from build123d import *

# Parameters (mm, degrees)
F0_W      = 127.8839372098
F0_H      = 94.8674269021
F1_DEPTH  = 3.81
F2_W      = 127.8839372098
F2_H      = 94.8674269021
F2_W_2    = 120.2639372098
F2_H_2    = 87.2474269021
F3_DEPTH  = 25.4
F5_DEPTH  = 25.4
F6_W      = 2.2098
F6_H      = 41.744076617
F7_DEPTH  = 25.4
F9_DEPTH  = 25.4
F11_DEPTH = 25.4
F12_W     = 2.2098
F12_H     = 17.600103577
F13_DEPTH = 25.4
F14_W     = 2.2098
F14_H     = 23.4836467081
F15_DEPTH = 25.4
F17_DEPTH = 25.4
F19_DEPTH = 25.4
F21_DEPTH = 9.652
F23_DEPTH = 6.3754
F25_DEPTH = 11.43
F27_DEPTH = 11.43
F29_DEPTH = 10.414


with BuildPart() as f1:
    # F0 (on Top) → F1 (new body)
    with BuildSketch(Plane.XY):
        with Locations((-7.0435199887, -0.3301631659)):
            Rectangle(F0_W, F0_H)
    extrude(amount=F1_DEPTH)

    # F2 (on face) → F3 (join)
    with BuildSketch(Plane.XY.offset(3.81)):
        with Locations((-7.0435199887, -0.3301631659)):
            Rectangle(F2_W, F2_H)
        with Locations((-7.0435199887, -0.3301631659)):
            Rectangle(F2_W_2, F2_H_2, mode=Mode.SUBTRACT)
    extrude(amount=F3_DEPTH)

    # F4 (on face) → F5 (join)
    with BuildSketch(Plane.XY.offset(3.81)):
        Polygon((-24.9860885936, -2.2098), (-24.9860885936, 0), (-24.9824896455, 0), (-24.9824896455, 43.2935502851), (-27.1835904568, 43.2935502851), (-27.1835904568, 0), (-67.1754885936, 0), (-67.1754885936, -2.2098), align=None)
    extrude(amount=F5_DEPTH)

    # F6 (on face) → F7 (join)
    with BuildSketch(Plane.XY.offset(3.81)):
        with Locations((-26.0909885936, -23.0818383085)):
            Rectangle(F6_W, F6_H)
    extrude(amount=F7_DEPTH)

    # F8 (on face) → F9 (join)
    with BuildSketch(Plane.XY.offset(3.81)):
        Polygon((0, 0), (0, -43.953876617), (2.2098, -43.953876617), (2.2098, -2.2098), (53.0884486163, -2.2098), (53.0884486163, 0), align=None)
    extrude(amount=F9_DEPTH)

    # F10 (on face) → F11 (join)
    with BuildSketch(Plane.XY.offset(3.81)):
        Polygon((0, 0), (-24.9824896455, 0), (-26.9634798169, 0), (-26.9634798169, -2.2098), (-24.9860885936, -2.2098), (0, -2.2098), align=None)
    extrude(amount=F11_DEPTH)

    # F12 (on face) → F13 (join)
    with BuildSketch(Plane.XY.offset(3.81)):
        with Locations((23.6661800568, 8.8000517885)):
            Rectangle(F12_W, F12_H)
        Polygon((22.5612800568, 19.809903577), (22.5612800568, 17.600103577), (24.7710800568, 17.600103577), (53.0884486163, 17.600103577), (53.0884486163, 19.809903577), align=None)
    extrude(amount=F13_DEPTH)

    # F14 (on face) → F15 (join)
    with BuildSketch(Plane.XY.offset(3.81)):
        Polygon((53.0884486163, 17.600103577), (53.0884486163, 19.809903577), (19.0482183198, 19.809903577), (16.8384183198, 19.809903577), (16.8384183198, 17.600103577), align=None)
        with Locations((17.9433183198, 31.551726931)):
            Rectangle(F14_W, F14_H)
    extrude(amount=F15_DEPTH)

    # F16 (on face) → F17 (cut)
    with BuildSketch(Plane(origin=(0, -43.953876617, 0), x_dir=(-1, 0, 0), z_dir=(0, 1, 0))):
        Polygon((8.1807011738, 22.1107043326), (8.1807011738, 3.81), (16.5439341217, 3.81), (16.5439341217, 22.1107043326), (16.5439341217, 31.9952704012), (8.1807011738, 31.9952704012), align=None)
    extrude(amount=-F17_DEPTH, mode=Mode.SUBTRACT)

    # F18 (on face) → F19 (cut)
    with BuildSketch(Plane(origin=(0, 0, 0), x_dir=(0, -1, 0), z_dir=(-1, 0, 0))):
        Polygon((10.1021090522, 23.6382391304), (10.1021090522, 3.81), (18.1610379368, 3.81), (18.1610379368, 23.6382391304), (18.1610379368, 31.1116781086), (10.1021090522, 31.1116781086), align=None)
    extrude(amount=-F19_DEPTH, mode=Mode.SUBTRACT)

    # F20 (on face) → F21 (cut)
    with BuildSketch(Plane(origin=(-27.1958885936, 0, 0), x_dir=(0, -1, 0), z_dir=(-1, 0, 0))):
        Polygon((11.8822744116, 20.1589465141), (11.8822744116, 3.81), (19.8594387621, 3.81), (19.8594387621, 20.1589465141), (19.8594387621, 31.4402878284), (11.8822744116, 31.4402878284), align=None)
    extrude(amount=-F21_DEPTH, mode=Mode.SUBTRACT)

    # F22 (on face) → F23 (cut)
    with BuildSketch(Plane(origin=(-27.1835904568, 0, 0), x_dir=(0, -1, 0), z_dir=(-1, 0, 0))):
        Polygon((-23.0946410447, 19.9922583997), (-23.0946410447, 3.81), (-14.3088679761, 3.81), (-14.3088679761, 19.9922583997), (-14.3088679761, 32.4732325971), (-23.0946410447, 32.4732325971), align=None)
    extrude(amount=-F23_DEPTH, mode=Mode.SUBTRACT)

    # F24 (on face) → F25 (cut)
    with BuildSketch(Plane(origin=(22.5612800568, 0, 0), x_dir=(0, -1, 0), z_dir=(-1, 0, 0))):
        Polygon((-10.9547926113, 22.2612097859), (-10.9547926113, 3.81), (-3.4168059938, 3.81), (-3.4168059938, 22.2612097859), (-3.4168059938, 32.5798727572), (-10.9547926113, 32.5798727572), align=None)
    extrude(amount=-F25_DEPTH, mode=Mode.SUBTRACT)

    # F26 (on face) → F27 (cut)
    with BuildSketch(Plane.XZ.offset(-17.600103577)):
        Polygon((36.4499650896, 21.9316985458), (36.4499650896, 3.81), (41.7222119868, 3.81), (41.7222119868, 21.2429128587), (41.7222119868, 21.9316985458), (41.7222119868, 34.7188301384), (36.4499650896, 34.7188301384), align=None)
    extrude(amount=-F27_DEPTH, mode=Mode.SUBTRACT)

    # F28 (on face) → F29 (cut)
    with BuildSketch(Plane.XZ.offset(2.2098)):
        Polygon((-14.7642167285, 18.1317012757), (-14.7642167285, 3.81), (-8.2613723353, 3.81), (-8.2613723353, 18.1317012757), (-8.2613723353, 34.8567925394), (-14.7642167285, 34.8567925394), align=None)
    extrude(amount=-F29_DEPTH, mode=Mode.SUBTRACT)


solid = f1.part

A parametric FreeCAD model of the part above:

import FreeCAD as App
import Part
import Sketcher

V = App.Vector
Q = App.Units.Quantity


def add_polygon(sketch, points):
    """Adds a closed chain of lines whose ends are joined by coincident constraints."""
    first, n = sketch.GeometryCount, len(points)
    for a, b in zip(points, points[1:] + points[:1]):
        sketch.addGeometry(Part.LineSegment(App.Vector(*a, 0), App.Vector(*b, 0)), False)
    for i in range(n):
        sketch.addConstraint(Sketcher.Constraint("Coincident", first + i, 2, first + (i + 1) % n, 1))

doc = App.newDocument("Part")
body = doc.addObject("PartDesign::Body", "Body")

# Sketch on XY plane
sketch1 = body.newObject("Sketcher::SketchObject", "Sketch")
sketch1.AttachmentSupport = (doc.getObject("XY_Plane"), [""])
sketch1.MapMode = "FlatFace"
add_polygon(sketch1, [(-71, 47), (-71, -48), (57, -48), (57, 47)])  # lines 0-3
sketch1.addConstraint(Sketcher.Constraint("Vertical", 0))
sketch1.addConstraint(Sketcher.Constraint("Horizontal", 1))
sketch1.addConstraint(Sketcher.Constraint("Vertical", 2))
sketch1.addConstraint(Sketcher.Constraint("Horizontal", 3))
sketch1.addConstraint(Sketcher.Constraint("DistanceX", 1, 1, 1, 2, Q("127.883937 mm")))
sketch1.addConstraint(Sketcher.Constraint("DistanceY", 0, 2, 0, 1, Q("94.867427 mm")))
sketch1.addConstraint(Sketcher.Constraint("DistanceX", 0, 2, -1, 1, Q("70.985489 mm")))
sketch1.addConstraint(Sketcher.Constraint("DistanceY", -1, 1, 2, 2, Q("47.10355 mm")))
pad1 = body.newObject("PartDesign::Pad", "Pad")
pad1.Profile = sketch1
pad1.Length = Q("0.15 in")

# Sketch on XY plane
sketch2 = body.newObject("Sketcher::SketchObject", "Sketch001")
sketch2.AttachmentSupport = (doc.getObject("XY_Plane"), [""])
sketch2.MapMode = "FlatFace"
sketch2.AttachmentOffset = App.Placement(V(0, 0, 0.15 * 25.4), App.Rotation())
add_polygon(sketch2, [(-71, 47), (-71, -48), (57, -48), (57, 47)])  # lines 0-3
add_polygon(sketch2, [(53, -44), (-67, -44), (-67, 43), (53, 43)])  # lines 4-7
sketch2.addConstraint(Sketcher.Constraint("Vertical", 0))
sketch2.addConstraint(Sketcher.Constraint("Horizontal", 1))
sketch2.addConstraint(Sketcher.Constraint("Vertical", 2))
sketch2.addConstraint(Sketcher.Constraint("Horizontal", 3))
sketch2.addConstraint(Sketcher.Constraint("Horizontal", 4))
sketch2.addConstraint(Sketcher.Constraint("Vertical", 5))
sketch2.addConstraint(Sketcher.Constraint("Horizontal", 6))
sketch2.addConstraint(Sketcher.Constraint("Vertical", 7))
sketch2.addConstraint(Sketcher.Constraint("DistanceX", 0, 2, 4, 2, Q("0.15 in")))
sketch2.addConstraint(Sketcher.Constraint("DistanceY", 0, 2, 4, 2, Q("0.15 in")))
sketch2.addConstraint(Sketcher.Constraint("DistanceY", 5, 2, 3, 2, Q("0.15 in")))
sketch2.addConstraint(Sketcher.Constraint("DistanceX", 6, 2, 2, 2, Q("0.15 in")))
sketch2.addConstraint(Sketcher.Constraint("DistanceX", 1, 1, 1, 2, Q("127.883937 mm")))
sketch2.addConstraint(Sketcher.Constraint("DistanceY", 0, 2, 0, 1, Q("94.867427 mm")))
sketch2.addConstraint(Sketcher.Constraint("DistanceX", 0, 2, -1, 1, Q("70.985489 mm")))
sketch2.addConstraint(Sketcher.Constraint("DistanceY", -1, 1, 2, 2, Q("47.10355 mm")))
pad2 = body.newObject("PartDesign::Pad", "Pad001")
pad2.Profile = sketch2
pad2.Length = Q("1 in")

# Sketch on XY plane
sketch3 = body.newObject("Sketcher::SketchObject", "Sketch002")
sketch3.AttachmentSupport = (doc.getObject("XY_Plane"), [""])
sketch3.MapMode = "FlatFace"
sketch3.AttachmentOffset = App.Placement(V(0, 0, 0.15 * 25.4), App.Rotation())
add_polygon(sketch3, [(-24.986089, -2.2098), (-24.986089, 0), (-24.98249, 0), (-24.98249, 43.29355), (-27.18359, 43.29355), (-27.18359, 0), (-67.175489, 0), (-67.175489, -2.2098)])  # lines 0-7
sketch3.addConstraint(Sketcher.Constraint("Vertical", 0))
sketch3.addConstraint(Sketcher.Constraint("Horizontal", 1))
sketch3.addConstraint(Sketcher.Constraint("Vertical", 2))
sketch3.addConstraint(Sketcher.Constraint("Horizontal", 3))
sketch3.addConstraint(Sketcher.Constraint("Vertical", 4))
sketch3.addConstraint(Sketcher.Constraint("Horizontal", 5))
sketch3.addConstraint(Sketcher.Constraint("Vertical", 6))
sketch3.addConstraint(Sketcher.Constraint("Horizontal", 7))
sketch3.addConstraint(Sketcher.Constraint("PointOnObject", 0, 2, -1))
sketch3.addConstraint(Sketcher.Constraint("PointOnObject", 4, 2, -1))
sketch3.addConstraint(Sketcher.Constraint("DistanceX", 7, 1, 7, 2, Q("1.661 in")))
sketch3.addConstraint(Sketcher.Constraint("DistanceY", 0, 1, 0, 2, Q("0.087 in")))
sketch3.addConstraint(Sketcher.Constraint("DistanceX", 1, 1, 1, 2, Q("0.003599 mm")))
sketch3.addConstraint(Sketcher.Constraint("DistanceX", 3, 2, 3, 1, Q("2.201101 mm")))
sketch3.addConstraint(Sketcher.Constraint("DistanceY", 2, 1, 2, 2, Q("43.29355 mm")))
sketch3.addConstraint(Sketcher.Constraint("DistanceX", 0, 2, -1, 1, Q("24.986089 mm")))
pad3 = body.newObject("PartDesign::Pad", "Pad002")
pad3.Profile = sketch3
pad3.Length = Q("1 in")

# Sketch on XY plane
sketch4 = body.newObject("Sketcher::SketchObject", "Sketch003")
sketch4.AttachmentSupport = (doc.getObject("XY_Plane"), [""])
sketch4.MapMode = "FlatFace"
sketch4.AttachmentOffset = App.Placement(V(0, 0, 0.15 * 25.4), App.Rotation())
add_polygon(sketch4, [(-27.2, -2.2), (-27.2, -44), (-25, -44), (-25, -2.2)])  # lines 0-3
sketch4.addConstraint(Sketcher.Constraint("Vertical", 0))
sketch4.addConstraint(Sketcher.Constraint("Horizontal", 1))
sketch4.addConstraint(Sketcher.Constraint("Vertical", 2))
sketch4.addConstraint(Sketcher.Constraint("Horizontal", 3))
sketch4.addConstraint(Sketcher.Constraint("DistanceX", 1, 1, 1, 2, Q("0.087 in")))
sketch4.addConstraint(Sketcher.Constraint("DistanceY", 2, 2, -1, 1, Q("0.087 in")))
sketch4.addConstraint(Sketcher.Constraint("DistanceY", 0, 2, 0, 1, Q("41.744077 mm")))
sketch4.addConstraint(Sketcher.Constraint("DistanceX", 0, 2, -1, 1, Q("27.195889 mm")))
pad4 = body.newObject("PartDesign::Pad", "Pad003")
pad4.Profile = sketch4
pad4.Length = Q("1 in")

# Sketch on XY plane
sketch5 = body.newObject("Sketcher::SketchObject", "Sketch004")
sketch5.AttachmentSupport = (doc.getObject("XY_Plane"), [""])
sketch5.MapMode = "FlatFace"
sketch5.AttachmentOffset = App.Placement(V(0, 0, 0.15 * 25.4), App.Rotation())
add_polygon(sketch5, [(0, 0), (0, -44), (2.2, -44), (2.2, -2.2), (53.1, -2.2), (53.1, 0)])  # lines 0-5
sketch5.addConstraint(Sketcher.Constraint("Vertical", 0))
sketch5.addConstraint(Sketcher.Constraint("Horizontal", 1))
sketch5.addConstraint(Sketcher.Constraint("Vertical", 2))
sketch5.addConstraint(Sketcher.Constraint("Horizontal", 3))
sketch5.addConstraint(Sketcher.Constraint("Vertical", 4))
sketch5.addConstraint(Sketcher.Constraint("Horizontal", 5))
sketch5.addConstraint(Sketcher.Constraint("Coincident", 5, 2, -1, 1))
sketch5.addConstraint(Sketcher.Constraint("Equal", 1, 4))
sketch5.addConstraint(Sketcher.Constraint("DistanceX", 1, 1, 1, 2, Q("0.087 in")))
sketch5.addConstraint(Sketcher.Constraint("DistanceX", 3, 1, 3, 2, Q("50.878649 mm")))
sketch5.addConstraint(Sketcher.Constraint("DistanceY", 0, 2, 0, 1, Q("43.953877 mm")))
pad5 = body.newObject("PartDesign::Pad", "Pad004")
pad5.Profile = sketch5
pad5.Length = Q("1 in")

# Sketch on XY plane
sketch6 = body.newObject("Sketcher::SketchObject", "Sketch005")
sketch6.AttachmentSupport = (doc.getObject("XY_Plane"), [""])
sketch6.MapMode = "FlatFace"
sketch6.AttachmentOffset = App.Placement(V(0, 0, 0.15 * 25.4), App.Rotation())
add_polygon(sketch6, [(0, 0), (-27, 0), (-27, -2.2), (0, -2.2)])  # lines 0-3
sketch6.addConstraint(Sketcher.Constraint("Horizontal", 0))
sketch6.addConstraint(Sketcher.Constraint("Vertical", 1))
sketch6.addConstraint(Sketcher.Constraint("Horizontal", 2))
sketch6.addConstraint(Sketcher.Constraint("Vertical", 3))
sketch6.addConstraint(Sketcher.Constraint("Coincident", 3, 2, -1, 1))
sketch6.addConstraint(Sketcher.Constraint("DistanceY", 1, 2, 1, 1, Q("0.087 in")))
sketch6.addConstraint(Sketcher.Constraint("DistanceX", 0, 2, 0, 1, Q("26.96348 mm")))
pad6 = body.newObject("PartDesign::Pad", "Pad005")
pad6.Profile = sketch6
pad6.Length = Q("1 in")

# Sketch on XY plane
sketch7 = body.newObject("Sketcher::SketchObject", "Sketch006")
sketch7.AttachmentSupport = (doc.getObject("XY_Plane"), [""])
sketch7.MapMode = "FlatFace"
sketch7.AttachmentOffset = App.Placement(V(0, 0, 0.15 * 25.4), App.Rotation())
add_polygon(sketch7, [(22.6, 0), (24.8, 0), (24.8, 17.6), (53.1, 17.6), (53.1, 19.8), (22.6, 19.8)])  # lines 0-5
sketch7.addConstraint(Sketcher.Constraint("Horizontal", 0))
sketch7.addConstraint(Sketcher.Constraint("Vertical", 1))
sketch7.addConstraint(Sketcher.Constraint("Horizontal", 2))
sketch7.addConstraint(Sketcher.Constraint("Vertical", 3))
sketch7.addConstraint(Sketcher.Constraint("Horizontal", 4))
sketch7.addConstraint(Sketcher.Constraint("Vertical", 5))
sketch7.addConstraint(Sketcher.Constraint("PointOnObject", 0, 2, -1))
sketch7.addConstraint(Sketcher.Constraint("Equal", 0, 3))
sketch7.addConstraint(Sketcher.Constraint("DistanceX", 0, 1, 0, 2, Q("0.087 in")))
sketch7.addConstraint(Sketcher.Constraint("DistanceX", 2, 1, 2, 2, Q("28.317369 mm")))
sketch7.addConstraint(Sketcher.Constraint("DistanceY", 1, 1, 1, 2, Q("17.600104 mm")))
sketch7.addConstraint(Sketcher.Constraint("DistanceX", -1, 1, 0, 2, Q("24.77108 mm")))
pad7 = body.newObject("PartDesign::Pad", "Pad006")
pad7.Profile = sketch7
pad7.Length = Q("1 in")

# Sketch on XY plane
sketch8 = body.newObject("Sketcher::SketchObject", "Sketch007")
sketch8.AttachmentSupport = (doc.getObject("XY_Plane"), [""])
sketch8.MapMode = "FlatFace"
sketch8.AttachmentOffset = App.Placement(V(0, 0, 0.15 * 25.4), App.Rotation())
add_polygon(sketch8, [(53.1, 17.6), (53.1, 19.8), (19, 19.8), (19, 43.3), (16.8, 43.3), (16.8, 17.6)])  # lines 0-5
sketch8.addConstraint(Sketcher.Constraint("Vertical", 0))
sketch8.addConstraint(Sketcher.Constraint("Horizontal", 1))
sketch8.addConstraint(Sketcher.Constraint("Vertical", 2))
sketch8.addConstraint(Sketcher.Constraint("Horizontal", 3))
sketch8.addConstraint(Sketcher.Constraint("Vertical", 4))
sketch8.addConstraint(Sketcher.Constraint("Horizontal", 5))
sketch8.addConstraint(Sketcher.Constraint("Equal", 3, 0))
sketch8.addConstraint(Sketcher.Constraint("DistanceX", 3, 2, 3, 1, Q("0.087 in")))
sketch8.addConstraint(Sketcher.Constraint("DistanceX", 1, 2, 1, 1, Q("34.04023 mm")))
sketch8.addConstraint(Sketcher.Constraint("DistanceY", 2, 1, 2, 2, Q("23.483647 mm")))
sketch8.addConstraint(Sketcher.Constraint("DistanceX", -1, 1, 0, 2, Q("53.088449 mm")))
sketch8.addConstraint(Sketcher.Constraint("DistanceY", -1, 1, 2, 2, Q("43.29355 mm")))
pad8 = body.newObject("PartDesign::Pad", "Pad007")
pad8.Profile = sketch8
pad8.Length = Q("1 in")

# Sketch on XZ plane
sketch9 = body.newObject("Sketcher::SketchObject", "Sketch008")
sketch9.AttachmentSupport = (doc.getObject("XZ_Plane"), [""])
sketch9.MapMode = "FlatFace"
sketch9.AttachmentOffset = App.Placement(V(0, 0, 43.953877), App.Rotation())
add_polygon(sketch9, [(-8, 4), (-17, 4), (-17, 32), (-8, 32)])  # lines 0-3
sketch9.addConstraint(Sketcher.Constraint("Horizontal", 0))
sketch9.addConstraint(Sketcher.Constraint("Vertical", 1))
sketch9.addConstraint(Sketcher.Constraint("Horizontal", 2))
sketch9.addConstraint(Sketcher.Constraint("Vertical", 3))
sketch9.addConstraint(Sketcher.Constraint("DistanceY", -1, 1, 0, 2, Q("0.15 in")))
sketch9.addConstraint(Sketcher.Constraint("DistanceY", 1, 1, 1, 2, Q("28.18527 mm")))
sketch9.addConstraint(Sketcher.Constraint("DistanceX", 2, 2, -1, 1, Q("8.180701 mm")))
sketch9.addConstraint(Sketcher.Constraint("DistanceX", 0, 2, 0, 1, Q("8.363233 mm")))
pocket1 = body.newObject("PartDesign::Pocket", "Pocket")
pocket1.Profile = sketch9
pocket1.Length = Q("1 in")
pocket1.Reversed = True

# Sketch on YZ plane
sketch10 = body.newObject("Sketcher::SketchObject", "Sketch009")
sketch10.AttachmentSupport = (doc.getObject("YZ_Plane"), [""])
sketch10.MapMode = "FlatFace"
add_polygon(sketch10, [(-10, 4), (-18, 4), (-18, 31), (-10, 31)])  # lines 0-3
sketch10.addConstraint(Sketcher.Constraint("Horizontal", 0))
sketch10.addConstraint(Sketcher.Constraint("Vertical", 1))
sketch10.addConstraint(Sketcher.Constraint("Horizontal", 2))
sketch10.addConstraint(Sketcher.Constraint("Vertical", 3))
sketch10.addConstraint(Sketcher.Constraint("DistanceY", -1, 1, 0, 2, Q("0.15 in")))
sketch10.addConstraint(Sketcher.Constraint("DistanceX", 0, 2, 0, 1, Q("8.058929 mm")))
sketch10.addConstraint(Sketcher.Constraint("DistanceY", 1, 1, 1, 2, Q("27.301678 mm")))
sketch10.addConstraint(Sketcher.Constraint("DistanceX", 2, 2, -1, 1, Q("10.102109 mm")))
pocket2 = body.newObject("PartDesign::Pocket", "Pocket001")
pocket2.Profile = sketch10
pocket2.Length = Q("1 in")
pocket2.Reversed = True

# Sketch on YZ plane
sketch11 = body.newObject("Sketcher::SketchObject", "Sketch010")
sketch11.AttachmentSupport = (doc.getObject("YZ_Plane"), [""])
sketch11.MapMode = "FlatFace"
sketch11.AttachmentOffset = App.Placement(V(0, 0, -27.195889), App.Rotation())
add_polygon(sketch11, [(-12, 4), (-20, 4), (-20, 31), (-12, 31)])  # lines 0-3
sketch11.addConstraint(Sketcher.Constraint("Horizontal", 0))
sketch11.addConstraint(Sketcher.Constraint("Vertical", 1))
sketch11.addConstraint(Sketcher.Constraint("Horizontal", 2))
sketch11.addConstraint(Sketcher.Constraint("Vertical", 3))
sketch11.addConstraint(Sketcher.Constraint("DistanceY", -1, 1, 0, 2, Q("0.15 in")))
sketch11.addConstraint(Sketcher.Constraint("DistanceX", 0, 2, 0, 1, Q("7.977164 mm")))
sketch11.addConstraint(Sketcher.Constraint("DistanceY", 1, 1, 1, 2, Q("27.630288 mm")))
sketch11.addConstraint(Sketcher.Constraint("DistanceX", 0, 2, -1, 1, Q("19.859439 mm")))
pocket3 = body.newObject("PartDesign::Pocket", "Pocket002")
pocket3.Profile = sketch11
pocket3.Length = Q("0.38 in")
pocket3.Reversed = True

# Sketch on YZ plane
sketch12 = body.newObject("Sketcher::SketchObject", "Sketch011")
sketch12.AttachmentSupport = (doc.getObject("YZ_Plane"), [""])
sketch12.MapMode = "FlatFace"
sketch12.AttachmentOffset = App.Placement(V(0, 0, -27.18359), App.Rotation())
add_polygon(sketch12, [(23, 4), (14, 4), (14, 32), (23, 32)])  # lines 0-3
sketch12.addConstraint(Sketcher.Constraint("Horizontal", 0))
sketch12.addConstraint(Sketcher.Constraint("Vertical", 1))
sketch12.addConstraint(Sketcher.Constraint("Horizontal", 2))
sketch12.addConstraint(Sketcher.Constraint("Vertical", 3))
sketch12.addConstraint(Sketcher.Constraint("DistanceY", -1, 1, 0, 2, Q("0.15 in")))
sketch12.addConstraint(Sketcher.Constraint("DistanceX", 0, 2, 0, 1, Q("8.785773 mm")))
sketch12.addConstraint(Sketcher.Constraint("DistanceY", 1, 1, 1, 2, Q("28.663233 mm")))
sketch12.addConstraint(Sketcher.Constraint("DistanceX", -1, 1, 2, 2, Q("23.094641 mm")))
pocket4 = body.newObject("PartDesign::Pocket", "Pocket003")
pocket4.Profile = sketch12
pocket4.Length = Q("0.251 in")
pocket4.Reversed = True

# Sketch on YZ plane
sketch13 = body.newObject("Sketcher::SketchObject", "Sketch012")
sketch13.AttachmentSupport = (doc.getObject("YZ_Plane"), [""])
sketch13.MapMode = "FlatFace"
sketch13.AttachmentOffset = App.Placement(V(0, 0, 22.56128), App.Rotation())
add_polygon(sketch13, [(11, 4), (3, 4), (3, 33), (11, 33)])  # lines 0-3
sketch13.addConstraint(Sketcher.Constraint("Horizontal", 0))
sketch13.addConstraint(Sketcher.Constraint("Vertical", 1))
sketch13.addConstraint(Sketcher.Constraint("Horizontal", 2))
sketch13.addConstraint(Sketcher.Constraint("Vertical", 3))
sketch13.addConstraint(Sketcher.Constraint("DistanceY", -1, 1, 0, 2, Q("0.15 in")))
sketch13.addConstraint(Sketcher.Constraint("DistanceX", 0, 2, 0, 1, Q("7.537987 mm")))
sketch13.addConstraint(Sketcher.Constraint("DistanceY", 1, 1, 1, 2, Q("28.769873 mm")))
sketch13.addConstraint(Sketcher.Constraint("DistanceX", -1, 1, 0, 2, Q("3.416806 mm")))
pocket5 = body.newObject("PartDesign::Pocket", "Pocket004")
pocket5.Profile = sketch13
pocket5.Length = Q("0.45 in")
pocket5.Reversed = True

# Sketch on XZ plane
sketch14 = body.newObject("Sketcher::SketchObject", "Sketch013")
sketch14.AttachmentSupport = (doc.getObject("XZ_Plane"), [""])
sketch14.MapMode = "FlatFace"
sketch14.AttachmentOffset = App.Placement(V(0, 0, -17.600104), App.Rotation())
add_polygon(sketch14, [(36, 4), (42, 4), (42, 35), (36, 35)])  # lines 0-3
sketch14.addConstraint(Sketcher.Constraint("Horizontal", 0))
sketch14.addConstraint(Sketcher.Constraint("Vertical", 1))
sketch14.addConstraint(Sketcher.Constraint("Horizontal", 2))
sketch14.addConstraint(Sketcher.Constraint("Vertical", 3))
sketch14.addConstraint(Sketcher.Constraint("DistanceY", -1, 1, 0, 2, Q("0.15 in")))
sketch14.addConstraint(Sketcher.Constraint("DistanceY", 1, 1, 1, 2, Q("30.90883 mm")))
sketch14.addConstraint(Sketcher.Constraint("DistanceX", 0, 1, 0, 2, Q("5.272247 mm")))
sketch14.addConstraint(Sketcher.Constraint("DistanceX", -1, 1, 0, 2, Q("41.722212 mm")))
pocket6 = body.newObject("PartDesign::Pocket", "Pocket005")
pocket6.Profile = sketch14
pocket6.Length = Q("0.45 in")

# Sketch on XZ plane
sketch15 = body.newObject("Sketcher::SketchObject", "Sketch014")
sketch15.AttachmentSupport = (doc.getObject("XZ_Plane"), [""])
sketch15.MapMode = "FlatFace"
sketch15.AttachmentOffset = App.Placement(V(0, 0, 0.087 * 25.4), App.Rotation())
add_polygon(sketch15, [(-15, 4), (-8, 4), (-8, 35), (-15, 35)])  # lines 0-3
sketch15.addConstraint(Sketcher.Constraint("Horizontal", 0))
sketch15.addConstraint(Sketcher.Constraint("Vertical", 1))
sketch15.addConstraint(Sketcher.Constraint("Horizontal", 2))
sketch15.addConstraint(Sketcher.Constraint("Vertical", 3))
sketch15.addConstraint(Sketcher.Constraint("DistanceY", -1, 1, 0, 2, Q("0.15 in")))
sketch15.addConstraint(Sketcher.Constraint("DistanceX", 0, 1, 0, 2, Q("6.502844 mm")))
sketch15.addConstraint(Sketcher.Constraint("DistanceY", 1, 1, 1, 2, Q("31.046793 mm")))
sketch15.addConstraint(Sketcher.Constraint("DistanceX", 0, 2, -1, 1, Q("8.261372 mm")))
pocket7 = body.newObject("PartDesign::Pocket", "Pocket006")
pocket7.Profile = sketch15
pocket7.Length = Q("0.41 in")

doc.recompute()
